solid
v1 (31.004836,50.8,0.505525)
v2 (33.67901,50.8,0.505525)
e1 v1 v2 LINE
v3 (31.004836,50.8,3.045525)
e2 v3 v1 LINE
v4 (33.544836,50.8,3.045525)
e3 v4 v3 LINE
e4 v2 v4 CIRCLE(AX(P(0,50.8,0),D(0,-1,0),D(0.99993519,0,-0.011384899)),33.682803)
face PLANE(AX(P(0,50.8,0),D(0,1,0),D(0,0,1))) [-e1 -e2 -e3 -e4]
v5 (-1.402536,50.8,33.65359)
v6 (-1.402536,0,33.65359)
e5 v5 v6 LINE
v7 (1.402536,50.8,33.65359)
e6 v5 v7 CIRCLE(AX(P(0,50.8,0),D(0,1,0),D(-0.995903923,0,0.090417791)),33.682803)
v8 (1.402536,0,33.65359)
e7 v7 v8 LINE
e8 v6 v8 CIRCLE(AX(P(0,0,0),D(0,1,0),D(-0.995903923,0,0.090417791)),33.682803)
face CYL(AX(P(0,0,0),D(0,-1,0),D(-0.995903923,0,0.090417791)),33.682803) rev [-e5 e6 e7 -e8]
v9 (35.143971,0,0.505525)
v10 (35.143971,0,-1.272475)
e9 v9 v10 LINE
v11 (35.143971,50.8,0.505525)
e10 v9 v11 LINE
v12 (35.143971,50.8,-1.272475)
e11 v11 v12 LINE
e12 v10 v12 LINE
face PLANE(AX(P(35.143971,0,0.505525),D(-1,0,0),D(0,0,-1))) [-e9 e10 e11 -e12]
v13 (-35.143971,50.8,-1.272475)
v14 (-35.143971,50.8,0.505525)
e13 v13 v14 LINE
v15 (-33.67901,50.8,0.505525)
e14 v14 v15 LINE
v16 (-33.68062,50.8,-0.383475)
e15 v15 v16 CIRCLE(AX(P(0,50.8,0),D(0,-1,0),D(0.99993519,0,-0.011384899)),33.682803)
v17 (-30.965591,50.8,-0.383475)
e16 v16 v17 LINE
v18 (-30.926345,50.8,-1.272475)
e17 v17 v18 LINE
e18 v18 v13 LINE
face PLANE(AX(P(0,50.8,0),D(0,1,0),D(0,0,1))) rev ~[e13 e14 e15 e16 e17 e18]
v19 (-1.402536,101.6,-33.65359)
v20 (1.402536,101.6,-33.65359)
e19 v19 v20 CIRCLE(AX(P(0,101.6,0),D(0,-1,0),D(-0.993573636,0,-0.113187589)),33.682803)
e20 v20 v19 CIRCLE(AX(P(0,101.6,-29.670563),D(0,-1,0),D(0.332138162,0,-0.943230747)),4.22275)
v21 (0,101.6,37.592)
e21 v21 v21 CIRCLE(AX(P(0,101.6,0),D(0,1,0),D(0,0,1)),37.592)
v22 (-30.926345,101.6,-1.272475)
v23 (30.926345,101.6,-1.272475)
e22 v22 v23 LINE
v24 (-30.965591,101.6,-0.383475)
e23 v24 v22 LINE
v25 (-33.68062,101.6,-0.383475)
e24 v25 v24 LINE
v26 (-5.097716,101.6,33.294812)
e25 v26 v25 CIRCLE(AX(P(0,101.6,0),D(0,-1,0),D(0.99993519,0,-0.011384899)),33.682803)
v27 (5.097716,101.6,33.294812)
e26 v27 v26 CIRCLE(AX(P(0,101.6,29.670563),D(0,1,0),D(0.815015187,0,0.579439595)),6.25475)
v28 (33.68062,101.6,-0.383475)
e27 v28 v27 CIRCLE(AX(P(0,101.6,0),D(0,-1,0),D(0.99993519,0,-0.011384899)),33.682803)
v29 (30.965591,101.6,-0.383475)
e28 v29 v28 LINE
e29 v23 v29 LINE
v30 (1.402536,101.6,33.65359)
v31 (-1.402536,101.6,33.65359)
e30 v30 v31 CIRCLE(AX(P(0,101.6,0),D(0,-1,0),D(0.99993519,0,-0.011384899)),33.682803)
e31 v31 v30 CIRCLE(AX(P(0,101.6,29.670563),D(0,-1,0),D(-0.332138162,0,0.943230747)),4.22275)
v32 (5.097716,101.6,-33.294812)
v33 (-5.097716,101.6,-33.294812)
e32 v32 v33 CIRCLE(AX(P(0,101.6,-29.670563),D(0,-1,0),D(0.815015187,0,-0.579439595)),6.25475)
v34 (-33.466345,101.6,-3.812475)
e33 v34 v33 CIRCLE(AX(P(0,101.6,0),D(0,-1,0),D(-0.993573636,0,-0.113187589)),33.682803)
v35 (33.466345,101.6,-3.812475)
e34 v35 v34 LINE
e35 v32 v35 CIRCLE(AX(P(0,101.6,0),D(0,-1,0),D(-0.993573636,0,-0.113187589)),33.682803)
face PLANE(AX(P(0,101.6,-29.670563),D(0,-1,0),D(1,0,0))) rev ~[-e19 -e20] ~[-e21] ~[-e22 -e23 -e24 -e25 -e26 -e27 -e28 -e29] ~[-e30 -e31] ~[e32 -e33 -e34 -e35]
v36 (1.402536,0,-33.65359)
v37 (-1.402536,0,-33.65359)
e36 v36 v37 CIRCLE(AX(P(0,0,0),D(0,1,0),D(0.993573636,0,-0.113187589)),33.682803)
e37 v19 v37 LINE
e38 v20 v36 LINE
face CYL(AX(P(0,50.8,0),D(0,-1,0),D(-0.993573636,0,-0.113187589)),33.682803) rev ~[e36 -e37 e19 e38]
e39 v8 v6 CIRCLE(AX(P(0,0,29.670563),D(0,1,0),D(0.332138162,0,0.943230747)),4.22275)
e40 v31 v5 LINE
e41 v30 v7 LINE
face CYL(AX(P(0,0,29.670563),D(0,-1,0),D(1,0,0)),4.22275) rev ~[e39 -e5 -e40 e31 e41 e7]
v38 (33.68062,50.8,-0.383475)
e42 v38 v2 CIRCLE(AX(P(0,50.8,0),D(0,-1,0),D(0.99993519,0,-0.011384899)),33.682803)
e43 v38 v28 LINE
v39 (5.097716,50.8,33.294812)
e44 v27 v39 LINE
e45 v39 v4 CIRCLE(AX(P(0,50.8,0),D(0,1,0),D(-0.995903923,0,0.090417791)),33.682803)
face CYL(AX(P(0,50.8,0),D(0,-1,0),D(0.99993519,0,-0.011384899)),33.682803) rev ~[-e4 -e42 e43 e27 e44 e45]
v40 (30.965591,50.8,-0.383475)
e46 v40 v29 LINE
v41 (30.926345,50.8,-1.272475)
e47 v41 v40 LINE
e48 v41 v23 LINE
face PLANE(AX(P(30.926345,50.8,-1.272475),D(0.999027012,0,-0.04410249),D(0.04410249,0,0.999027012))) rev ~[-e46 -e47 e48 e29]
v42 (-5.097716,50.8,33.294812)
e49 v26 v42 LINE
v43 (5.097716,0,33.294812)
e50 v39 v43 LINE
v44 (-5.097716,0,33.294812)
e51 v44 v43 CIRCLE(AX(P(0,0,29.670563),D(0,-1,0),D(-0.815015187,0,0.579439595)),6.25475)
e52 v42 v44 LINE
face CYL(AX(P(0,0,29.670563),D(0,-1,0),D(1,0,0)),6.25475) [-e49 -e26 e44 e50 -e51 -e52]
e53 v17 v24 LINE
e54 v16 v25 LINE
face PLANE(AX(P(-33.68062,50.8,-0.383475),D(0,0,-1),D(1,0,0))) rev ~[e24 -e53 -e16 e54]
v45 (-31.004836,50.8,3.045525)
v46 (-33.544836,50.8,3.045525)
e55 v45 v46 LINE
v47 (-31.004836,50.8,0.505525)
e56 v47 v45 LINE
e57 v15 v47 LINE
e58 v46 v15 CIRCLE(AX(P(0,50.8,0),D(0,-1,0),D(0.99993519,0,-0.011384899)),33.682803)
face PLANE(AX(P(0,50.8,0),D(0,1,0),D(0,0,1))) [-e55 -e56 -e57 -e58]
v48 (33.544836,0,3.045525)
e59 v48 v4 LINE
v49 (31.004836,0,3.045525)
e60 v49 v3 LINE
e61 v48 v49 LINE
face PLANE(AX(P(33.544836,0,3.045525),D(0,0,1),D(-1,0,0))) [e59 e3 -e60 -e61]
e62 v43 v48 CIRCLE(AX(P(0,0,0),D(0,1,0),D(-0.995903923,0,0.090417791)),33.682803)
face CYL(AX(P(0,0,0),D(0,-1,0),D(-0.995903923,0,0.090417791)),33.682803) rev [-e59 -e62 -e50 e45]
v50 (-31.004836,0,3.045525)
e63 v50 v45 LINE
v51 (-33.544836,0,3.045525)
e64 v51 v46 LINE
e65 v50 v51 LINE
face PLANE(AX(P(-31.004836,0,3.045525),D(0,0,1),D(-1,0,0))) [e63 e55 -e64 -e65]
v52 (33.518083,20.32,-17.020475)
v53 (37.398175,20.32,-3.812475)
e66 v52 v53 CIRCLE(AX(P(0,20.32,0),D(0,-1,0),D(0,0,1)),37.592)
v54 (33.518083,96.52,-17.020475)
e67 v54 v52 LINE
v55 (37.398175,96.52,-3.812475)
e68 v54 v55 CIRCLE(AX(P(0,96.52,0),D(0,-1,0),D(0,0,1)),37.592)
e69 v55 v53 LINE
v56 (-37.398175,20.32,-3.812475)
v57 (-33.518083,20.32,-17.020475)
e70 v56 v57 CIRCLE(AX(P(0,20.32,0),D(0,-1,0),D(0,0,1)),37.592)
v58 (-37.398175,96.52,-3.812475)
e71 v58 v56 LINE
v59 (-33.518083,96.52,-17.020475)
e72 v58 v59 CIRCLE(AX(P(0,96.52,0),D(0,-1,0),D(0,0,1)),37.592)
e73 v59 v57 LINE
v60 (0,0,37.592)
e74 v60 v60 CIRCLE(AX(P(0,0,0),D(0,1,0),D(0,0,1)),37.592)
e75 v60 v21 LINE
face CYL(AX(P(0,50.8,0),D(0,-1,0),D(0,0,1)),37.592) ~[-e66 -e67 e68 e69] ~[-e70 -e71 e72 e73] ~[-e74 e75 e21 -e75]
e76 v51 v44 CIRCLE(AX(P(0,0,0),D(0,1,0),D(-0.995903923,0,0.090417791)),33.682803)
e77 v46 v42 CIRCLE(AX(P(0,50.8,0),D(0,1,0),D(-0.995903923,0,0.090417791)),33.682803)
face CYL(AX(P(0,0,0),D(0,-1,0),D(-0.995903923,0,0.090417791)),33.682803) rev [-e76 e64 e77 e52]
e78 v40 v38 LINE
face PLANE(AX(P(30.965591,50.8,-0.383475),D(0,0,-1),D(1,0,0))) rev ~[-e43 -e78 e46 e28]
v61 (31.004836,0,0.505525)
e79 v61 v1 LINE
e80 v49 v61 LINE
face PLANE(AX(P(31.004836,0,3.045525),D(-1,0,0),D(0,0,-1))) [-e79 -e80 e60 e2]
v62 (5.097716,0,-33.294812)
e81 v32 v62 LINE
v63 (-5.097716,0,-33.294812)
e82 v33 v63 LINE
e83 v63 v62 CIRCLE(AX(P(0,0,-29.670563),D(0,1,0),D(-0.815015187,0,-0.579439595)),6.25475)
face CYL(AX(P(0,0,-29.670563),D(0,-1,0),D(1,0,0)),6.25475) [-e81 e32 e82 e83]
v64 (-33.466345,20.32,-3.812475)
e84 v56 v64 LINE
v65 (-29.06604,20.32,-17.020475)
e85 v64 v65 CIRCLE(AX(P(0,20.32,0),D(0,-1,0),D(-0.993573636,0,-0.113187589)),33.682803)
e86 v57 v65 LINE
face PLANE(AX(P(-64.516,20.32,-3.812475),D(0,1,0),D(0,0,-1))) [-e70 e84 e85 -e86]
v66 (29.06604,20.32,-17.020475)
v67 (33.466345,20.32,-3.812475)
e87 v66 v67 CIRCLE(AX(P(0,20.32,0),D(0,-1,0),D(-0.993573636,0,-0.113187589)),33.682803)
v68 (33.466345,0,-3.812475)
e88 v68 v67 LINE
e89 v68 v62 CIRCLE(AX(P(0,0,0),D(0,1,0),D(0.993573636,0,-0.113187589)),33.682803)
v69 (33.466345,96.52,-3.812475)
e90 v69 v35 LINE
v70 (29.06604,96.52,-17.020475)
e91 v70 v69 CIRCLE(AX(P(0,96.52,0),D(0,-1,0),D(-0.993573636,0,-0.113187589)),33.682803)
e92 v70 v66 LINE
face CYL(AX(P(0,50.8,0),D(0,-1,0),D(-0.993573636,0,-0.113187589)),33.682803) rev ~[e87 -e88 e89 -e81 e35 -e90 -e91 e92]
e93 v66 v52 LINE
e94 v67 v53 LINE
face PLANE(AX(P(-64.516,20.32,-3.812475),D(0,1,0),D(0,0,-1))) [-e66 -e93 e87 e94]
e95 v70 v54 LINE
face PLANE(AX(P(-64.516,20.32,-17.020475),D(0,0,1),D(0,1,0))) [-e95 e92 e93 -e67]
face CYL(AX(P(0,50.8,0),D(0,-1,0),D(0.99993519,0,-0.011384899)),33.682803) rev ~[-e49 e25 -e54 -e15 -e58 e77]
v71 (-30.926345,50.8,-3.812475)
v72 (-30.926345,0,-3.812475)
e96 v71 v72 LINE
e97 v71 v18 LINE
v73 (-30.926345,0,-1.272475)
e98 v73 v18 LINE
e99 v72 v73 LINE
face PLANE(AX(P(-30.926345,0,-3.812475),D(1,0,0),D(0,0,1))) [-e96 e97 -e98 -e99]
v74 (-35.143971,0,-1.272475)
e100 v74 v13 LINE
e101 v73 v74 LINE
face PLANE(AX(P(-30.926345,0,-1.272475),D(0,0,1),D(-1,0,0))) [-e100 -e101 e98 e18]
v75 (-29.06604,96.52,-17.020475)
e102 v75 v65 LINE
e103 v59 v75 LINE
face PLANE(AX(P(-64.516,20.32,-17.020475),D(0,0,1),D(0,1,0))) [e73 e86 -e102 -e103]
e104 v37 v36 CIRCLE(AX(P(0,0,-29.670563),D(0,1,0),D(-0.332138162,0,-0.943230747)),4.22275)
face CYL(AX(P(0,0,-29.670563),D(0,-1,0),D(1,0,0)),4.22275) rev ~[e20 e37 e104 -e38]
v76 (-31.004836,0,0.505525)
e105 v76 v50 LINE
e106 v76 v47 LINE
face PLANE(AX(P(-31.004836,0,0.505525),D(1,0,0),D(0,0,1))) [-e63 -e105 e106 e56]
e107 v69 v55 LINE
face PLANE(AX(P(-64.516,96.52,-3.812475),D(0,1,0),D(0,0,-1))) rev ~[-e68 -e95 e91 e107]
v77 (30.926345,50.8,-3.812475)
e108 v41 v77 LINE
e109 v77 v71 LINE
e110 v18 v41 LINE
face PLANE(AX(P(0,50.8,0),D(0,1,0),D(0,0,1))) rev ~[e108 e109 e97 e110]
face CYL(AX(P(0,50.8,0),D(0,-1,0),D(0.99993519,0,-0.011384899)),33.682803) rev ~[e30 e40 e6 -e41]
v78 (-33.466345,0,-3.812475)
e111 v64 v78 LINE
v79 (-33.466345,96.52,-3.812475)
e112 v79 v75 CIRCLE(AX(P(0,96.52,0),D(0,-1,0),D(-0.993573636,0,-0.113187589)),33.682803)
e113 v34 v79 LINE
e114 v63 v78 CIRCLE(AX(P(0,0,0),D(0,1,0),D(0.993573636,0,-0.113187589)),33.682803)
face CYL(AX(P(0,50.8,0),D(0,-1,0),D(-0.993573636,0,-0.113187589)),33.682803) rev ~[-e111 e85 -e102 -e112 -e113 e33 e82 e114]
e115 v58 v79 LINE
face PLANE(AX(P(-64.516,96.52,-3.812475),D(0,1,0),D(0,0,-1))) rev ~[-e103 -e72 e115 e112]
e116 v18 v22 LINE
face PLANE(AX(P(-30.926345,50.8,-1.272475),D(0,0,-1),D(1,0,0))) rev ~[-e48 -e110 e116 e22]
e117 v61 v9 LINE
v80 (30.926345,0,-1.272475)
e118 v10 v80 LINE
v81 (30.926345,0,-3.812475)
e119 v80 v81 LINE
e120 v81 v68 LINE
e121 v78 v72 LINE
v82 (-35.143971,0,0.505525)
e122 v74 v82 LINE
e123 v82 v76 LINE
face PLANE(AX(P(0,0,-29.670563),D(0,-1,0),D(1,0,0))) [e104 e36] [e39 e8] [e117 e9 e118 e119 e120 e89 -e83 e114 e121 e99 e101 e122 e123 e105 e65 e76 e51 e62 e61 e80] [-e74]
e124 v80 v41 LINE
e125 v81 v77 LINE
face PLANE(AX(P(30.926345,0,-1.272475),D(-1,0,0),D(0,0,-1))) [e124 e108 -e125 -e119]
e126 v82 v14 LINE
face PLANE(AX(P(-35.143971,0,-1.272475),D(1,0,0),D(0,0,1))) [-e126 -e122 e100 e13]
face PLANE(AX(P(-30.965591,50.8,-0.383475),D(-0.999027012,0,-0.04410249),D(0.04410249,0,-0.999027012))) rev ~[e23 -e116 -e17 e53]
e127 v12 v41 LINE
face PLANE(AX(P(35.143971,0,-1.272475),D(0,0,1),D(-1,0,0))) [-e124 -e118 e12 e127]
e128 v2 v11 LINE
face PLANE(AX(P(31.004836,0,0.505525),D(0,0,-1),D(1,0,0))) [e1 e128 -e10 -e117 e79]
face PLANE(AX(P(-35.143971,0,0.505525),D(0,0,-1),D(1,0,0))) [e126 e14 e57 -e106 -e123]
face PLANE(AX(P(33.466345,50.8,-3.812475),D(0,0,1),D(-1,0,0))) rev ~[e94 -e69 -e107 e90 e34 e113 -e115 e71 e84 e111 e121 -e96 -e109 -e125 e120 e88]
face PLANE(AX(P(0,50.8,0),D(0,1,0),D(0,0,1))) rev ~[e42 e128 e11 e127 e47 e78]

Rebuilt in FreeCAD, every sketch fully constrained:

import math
import FreeCAD as App
import Part
import Sketcher

V = App.Vector
Q = App.Units.Quantity


def add_polygon(sketch, points):
    """Adds a closed chain of lines whose ends are joined by coincident constraints."""
    first, n = sketch.GeometryCount, len(points)
    for a, b in zip(points, points[1:] + points[:1]):
        sketch.addGeometry(Part.LineSegment(App.Vector(*a, 0), App.Vector(*b, 0)), False)
    for i in range(n):
        sketch.addConstraint(Sketcher.Constraint("Coincident", first + i, 2, first + (i + 1) % n, 1))

doc = App.newDocument("Part")
body = doc.addObject("PartDesign::Body", "Body")

# Sketch on XZ plane
sketch1 = doc.addObject("Sketcher::SketchObject", "Sketch")
body.addObject(sketch1)
sketch1.AttachmentSupport = (doc.XZ_Plane, [""])
sketch1.MapMode = "FlatFace"
sketch1.addGeometry([
    Part.Circle(V(0, 0, 0), V(0, 0, 1), 37.592),  # 0
    Part.LineSegment(V(-35.143971, 0.505525, 0), V(-35.143971, -1.272475, 0)),  # 1
    Part.LineSegment(V(-35.143971, -1.272475, 0), V(-30.926345, -1.272475, 0)),  # 2
    Part.LineSegment(V(-30.926345, -1.272475, 0), V(-30.926345, -3.812475, 0)),  # 3
    Part.LineSegment(V(-30.926345, -3.812475, 0), V(-33.466345, -3.812475, 0)),  # 4
    Part.ArcOfCircle(Part.Circle(V(0, 0, 0), V(0, 0, 1), 33.682803), math.radians(-173.500901), math.radians(-6.499099)),  # 5
    Part.LineSegment(V(33.466345, -3.812475, 0), V(30.926345, -3.812475, 0)),  # 6
    Part.LineSegment(V(30.926345, -3.812475, 0), V(30.926345, -1.272475, 0)),  # 7
    Part.LineSegment(V(30.926345, -1.272475, 0), V(35.143971, -1.272475, 0)),  # 8
    Part.LineSegment(V(35.143971, -1.272475, 0), V(35.143971, 0.505525, 0)),  # 9
    Part.LineSegment(V(35.143971, 0.505525, 0), V(31.004836, 0.505525, 0)),  # 10
    Part.LineSegment(V(31.004836, 0.505525, 0), V(31.004836, 3.045525, 0)),  # 11
    Part.LineSegment(V(31.004836, 3.045525, 0), V(33.544836, 3.045525, 0)),  # 12
    Part.ArcOfCircle(Part.Circle(V(0, 0, 0), V(0, 0, 1), 33.682803), math.radians(5.187643), math.radians(174.812357)),  # 13
    Part.LineSegment(V(-33.544836, 3.045525, 0), V(-31.004836, 3.045525, 0)),  # 14
    Part.LineSegment(V(-31.004836, 3.045525, 0), V(-31.004836, 0.505525, 0)),  # 15
    Part.LineSegment(V(-31.004836, 0.505525, 0), V(-35.143971, 0.505525, 0)),  # 16
], False)
sketch1.addConstraint([
    Sketcher.Constraint("Coincident", 1, 2, 2, 1),
    Sketcher.Constraint("Coincident", 2, 2, 3, 1),
    Sketcher.Constraint("Coincident", 3, 2, 4, 1),
    Sketcher.Constraint("Coincident", 4, 2, 5, 1),
    Sketcher.Constraint("Coincident", 5, 2, 6, 1),
    Sketcher.Constraint("Coincident", 6, 2, 7, 1),
    Sketcher.Constraint("Coincident", 7, 2, 8, 1),
    Sketcher.Constraint("Coincident", 8, 2, 9, 1),
    Sketcher.Constraint("Coincident", 9, 2, 10, 1),
    Sketcher.Constraint("Coincident", 10, 2, 11, 1),
    Sketcher.Constraint("Coincident", 11, 2, 12, 1),
    Sketcher.Constraint("Coincident", 12, 2, 13, 1),
    Sketcher.Constraint("Coincident", 13, 2, 14, 1),
    Sketcher.Constraint("Coincident", 14, 2, 15, 1),
    Sketcher.Constraint("Coincident", 15, 2, 16, 1),
    Sketcher.Constraint("Coincident", 16, 2, 1, 1),
    Sketcher.Constraint("Vertical", 1),
    Sketcher.Constraint("Horizontal", 2),
    Sketcher.Constraint("Vertical", 3),
    Sketcher.Constraint("Horizontal", 4),
    Sketcher.Constraint("Horizontal", 6),
    Sketcher.Constraint("Vertical", 7),
    Sketcher.Constraint("Horizontal", 8),
    Sketcher.Constraint("Vertical", 9),
    Sketcher.Constraint("Horizontal", 10),
    Sketcher.Constraint("Vertical", 11),
    Sketcher.Constraint("Horizontal", 12),
    Sketcher.Constraint("Horizontal", 14),
    Sketcher.Constraint("Vertical", 15),
    Sketcher.Constraint("Horizontal", 16),
    Sketcher.Constraint("Coincident", 0, 3, -1, 1),
    Sketcher.Constraint("Coincident", 5, 3, -1, 1),
    Sketcher.Constraint("Coincident", 13, 3, -1, 1),
    Sketcher.Constraint("Equal", 5, 13),
    Sketcher.Constraint("Symmetric", 3, 2, 6, 2, -2),
    Sketcher.Constraint("Symmetric", 1, 2, 8, 2, -2),
    Sketcher.Constraint("Symmetric", 11, 2, 14, 2, -2),
    Sketcher.Constraint("Horizontal", 10, 2, 15, 2),
    Sketcher.Constraint("Equal", 6, 12),
    Sketcher.Constraint("Equal", 14, 3),
    Sketcher.Constraint("Equal", 7, 11),
    Sketcher.Constraint("Diameter", 0, Q("2.96 in")),
    Sketcher.Constraint("DistanceX", 4, 2, 4, 1, Q("0.1 in")),
    Sketcher.Constraint("DistanceY", 1, 2, 1, 1, Q("0.07 in")),
    Sketcher.Constraint("Radius", 5, Q("33.682803 mm")),
    Sketcher.Constraint("DistanceX", 2, 1, 2, 2, Q("4.217625 mm")),
    Sketcher.Constraint("DistanceX", 10, 2, 10, 1, Q("4.139135 mm")),
])
pad1 = doc.addObject("PartDesign::Pad", "Pad")
body.addObject(pad1)
pad1.Profile = sketch1
pad1.Length = Q("2 in")
pad1.Reversed = True

# Sketch on XZ plane
sketch2 = doc.addObject("Sketcher::SketchObject", "Sketch001")
body.addObject(sketch2)
sketch2.AttachmentSupport = (doc.XZ_Plane, [""])
sketch2.MapMode = "FlatFace"
sketch2.AttachmentOffset = App.Placement(V(0, 0, -2 * 25.4), App.Rotation())
sketch2.addGeometry([
    Part.Circle(V(0, 0, 0), V(0, 0, 1), 37.592),  # 0
    Part.ArcOfCircle(Part.Circle(V(0, 0, 0), V(0, 0, 1), 33.682803), math.radians(-173.500901), math.radians(-6.499099)),  # 1
    Part.LineSegment(V(33.466345, -3.812475, 0), V(-33.466345, -3.812475, 0)),  # 2
    Part.LineSegment(V(-30.965591, -0.383475, 0), V(-30.926345, -1.272475, 0)),  # 3
    Part.LineSegment(V(-30.926345, -1.272475, 0), V(30.926345, -1.272475, 0)),  # 4
    Part.LineSegment(V(30.926345, -1.272475, 0), V(30.965591, -0.383475, 0)),  # 5
    Part.LineSegment(V(30.965591, -0.383475, 0), V(33.68062, -0.383475, 0)),  # 6
    Part.ArcOfCircle(Part.Circle(V(0, 0, 0), V(0, 0, 1), 33.682803), math.radians(-0.652321), math.radians(180.652321)),  # 7
    Part.LineSegment(V(-33.68062, -0.383475, 0), V(-30.965591, -0.383475, 0)),  # 8
], False)
sketch2.addConstraint([
    Sketcher.Constraint("Coincident", 1, 1, 2, 2),
    Sketcher.Constraint("Coincident", 2, 1, 1, 2),
    Sketcher.Constraint("Coincident", 3, 2, 4, 1),
    Sketcher.Constraint("Coincident", 4, 2, 5, 1),
    Sketcher.Constraint("Coincident", 5, 2, 6, 1),
    Sketcher.Constraint("Coincident", 6, 2, 7, 1),
    Sketcher.Constraint("Coincident", 7, 2, 8, 1),
    Sketcher.Constraint("Coincident", 8, 2, 3, 1),
    Sketcher.Constraint("Horizontal", 2),
    Sketcher.Constraint("Horizontal", 4),
    Sketcher.Constraint("Horizontal", 6),
    Sketcher.Constraint("Horizontal", 8),
    Sketcher.Constraint("Coincident", 0, 3, -1, 1),
    Sketcher.Constraint("Coincident", 1, 3, -1, 1),
    Sketcher.Constraint("Coincident", 7, 3, -1, 1),
    Sketcher.Constraint("Equal", 1, 7),
    Sketcher.Constraint("Symmetric", 5, 2, 8, 2, -2),
    Sketcher.Constraint("Equal", 3, 5),
    Sketcher.Constraint("Diameter", 0, Q("2.96 in")),
    Sketcher.Constraint("DistanceX", 1, 1, 3, 2, Q("0.1 in")),
    Sketcher.Constraint("DistanceY", 1, 1, 3, 2, Q("0.1 in")),
    Sketcher.Constraint("DistanceY", 4, 2, 5, 2, Q("0.035 in")),
    Sketcher.Constraint("Radius", 1, Q("33.682803 mm")),
    Sketcher.Constraint("DistanceX", 2, 2, 2, 1, Q("66.932691 mm")),
    Sketcher.Constraint("DistanceX", 6, 1, 6, 2, Q("2.71503 mm")),
])
pad2 = doc.addObject("PartDesign::Pad", "Pad001")
body.addObject(pad2)
pad2.Profile = sketch2
pad2.Length = Q("2 in")
pad2.Reversed = True

# Sketch on XZ plane
sketch3 = doc.addObject("Sketcher::SketchObject", "Sketch002")
body.addObject(sketch3)
sketch3.AttachmentSupport = (doc.XZ_Plane, [""])
sketch3.MapMode = "FlatFace"
sketch3.addGeometry([
    Part.Circle(V(0, -29.670563, 0), V(0, 0, 1), 6.25475),
    Part.Circle(V(0, -29.670563, 0), V(0, 0, 1), 4.22275),
    Part.Circle(V(0, 29.670563, 0), V(0, 0, 1), 6.25475),
    Part.Circle(V(0, 29.670563, 0), V(0, 0, 1), 4.22275),
], False)
sketch3.addConstraint([
    Sketcher.Constraint("Coincident", 1, 3, 0, 3),
    Sketcher.Constraint("Coincident", 3, 3, 2, 3),
    Sketcher.Constraint("Equal", 0, 2),
    Sketcher.Constraint("Equal", 1, 3),
    Sketcher.Constraint("Symmetric", 0, 3, 2, 3, -1, 1),
    Sketcher.Constraint("PointOnObject", 0, 3, -2),
    Sketcher.Constraint("Diameter", 0, Q("0.4925 in")),
    Sketcher.Constraint("Diameter", 1, Q("0.3325 in")),
    Sketcher.Constraint("DistanceY", 0, 3, -1, 1, Q("29.670563 mm")),
])
pad3 = doc.addObject("PartDesign::Pad", "Pad002")
body.addObject(pad3)
pad3.Profile = sketch3
pad3.Length = Q("4 in")
pad3.Reversed = True

# Sketch on YZ plane
sketch4 = doc.addObject("Sketcher::SketchObject", "Sketch003")
body.addObject(sketch4)
sketch4.AttachmentSupport = (doc.YZ_Plane, [""])
sketch4.MapMode = "FlatFace"
add_polygon(sketch4, [(96.52, -3.812475), (20.32, -3.812475), (20.32, -17.020475), (96.52, -17.020475)])  # lines 0-3
sketch4.addConstraint([
    Sketcher.Constraint("Horizontal", 0),
    Sketcher.Constraint("Vertical", 1),
    Sketcher.Constraint("Horizontal", 2),
    Sketcher.Constraint("Vertical", 3),
    Sketcher.Constraint("DistanceX", 0, 2, 0, 1, Q("3 in")),
    Sketcher.Constraint("DistanceY", 1, 2, 1, 1, Q("0.52 in")),
    Sketcher.Constraint("DistanceX", -1, 1, 0, 2, Q("0.8 in")),
    Sketcher.Constraint("DistanceY", 0, 2, -1, 1, Q("3.812475 mm")),
])
pocket1 = doc.addObject("PartDesign::Pocket", "Pocket")
body.addObject(pocket1)
pocket1.Profile = sketch4
pocket1.Type = "ThroughAll"
pocket1.Midplane = True

doc.recompute()
